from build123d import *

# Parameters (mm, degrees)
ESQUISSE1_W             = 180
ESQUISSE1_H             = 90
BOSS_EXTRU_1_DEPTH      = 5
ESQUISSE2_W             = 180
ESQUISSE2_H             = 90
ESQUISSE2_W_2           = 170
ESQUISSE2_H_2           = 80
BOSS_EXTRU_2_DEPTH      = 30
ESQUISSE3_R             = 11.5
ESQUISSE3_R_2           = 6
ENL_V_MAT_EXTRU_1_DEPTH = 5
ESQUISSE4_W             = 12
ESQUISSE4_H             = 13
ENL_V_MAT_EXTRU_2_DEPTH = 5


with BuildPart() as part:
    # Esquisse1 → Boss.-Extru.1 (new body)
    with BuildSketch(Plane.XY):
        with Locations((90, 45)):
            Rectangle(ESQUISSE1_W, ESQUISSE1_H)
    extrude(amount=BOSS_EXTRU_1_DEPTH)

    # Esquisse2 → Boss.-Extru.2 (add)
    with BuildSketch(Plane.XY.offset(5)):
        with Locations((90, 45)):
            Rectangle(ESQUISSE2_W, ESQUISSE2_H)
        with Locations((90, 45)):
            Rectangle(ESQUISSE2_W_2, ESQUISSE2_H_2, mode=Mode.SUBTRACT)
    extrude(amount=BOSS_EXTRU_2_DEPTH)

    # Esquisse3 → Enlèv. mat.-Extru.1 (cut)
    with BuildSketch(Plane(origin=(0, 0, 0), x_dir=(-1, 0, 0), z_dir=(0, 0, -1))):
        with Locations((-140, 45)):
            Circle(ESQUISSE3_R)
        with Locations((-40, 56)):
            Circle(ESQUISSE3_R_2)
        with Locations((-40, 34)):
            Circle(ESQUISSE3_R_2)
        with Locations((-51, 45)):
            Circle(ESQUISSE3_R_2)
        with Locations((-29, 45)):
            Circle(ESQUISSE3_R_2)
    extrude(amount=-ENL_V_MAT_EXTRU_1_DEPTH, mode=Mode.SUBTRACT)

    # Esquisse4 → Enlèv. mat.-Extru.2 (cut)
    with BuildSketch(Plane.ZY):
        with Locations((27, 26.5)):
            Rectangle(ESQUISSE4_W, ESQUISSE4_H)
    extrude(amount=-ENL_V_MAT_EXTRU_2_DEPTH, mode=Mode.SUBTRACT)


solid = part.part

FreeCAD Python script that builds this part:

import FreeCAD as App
import Part
import Sketcher

V = App.Vector

doc = App.newDocument("Part")
body = doc.addObject("PartDesign::Body", "Body")

# Sketch on XY plane
sketch1 = body.newObject("Sketcher::SketchObject", "Sketch")
sketch1.AttachmentSupport = (doc.getObject("XY_Plane"), [""])
sketch1.MapMode = "FlatFace"
sketch1.addGeometry([
    Part.LineSegment(V(0, 90, 0), V(0, 0, 0)),
    Part.LineSegment(V(0, 0, 0), V(180, 0, 0)),
    Part.LineSegment(V(180, 0, 0), V(180, 90, 0)),
    Part.LineSegment(V(180, 90, 0), V(0, 90, 0)),
], False)
sketch1.addConstraint([
    Sketcher.Constraint("Coincident", 0, 2, 1, 1),
    Sketcher.Constraint("Coincident", 1, 2, 2, 1),
    Sketcher.Constraint("Coincident", 2, 2, 3, 1),
    Sketcher.Constraint("Coincident", 3, 2, 0, 1),
    Sketcher.Constraint("Vertical", 0),
    Sketcher.Constraint("Horizontal", 1),
    Sketcher.Constraint("Vertical", 2),
    Sketcher.Constraint("Horizontal", 3),
    Sketcher.Constraint("Coincident", 0, 2, -1, 1),
    Sketcher.Constraint("DistanceX", 1, 1, 1, 2, 180.0),
    Sketcher.Constraint("DistanceY", 0, 2, 0, 1, 90.0),
])
pad1 = body.newObject("PartDesign::Pad", "Pad")
pad1.Profile = sketch1
pad1.Length = 5

# Sketch on XY plane
sketch2 = body.newObject("Sketcher::SketchObject", "Sketch001")
sketch2.AttachmentSupport = (doc.getObject("XY_Plane"), [""])
sketch2.MapMode = "FlatFace"
sketch2.AttachmentOffset = App.Placement(V(0, 0, 5), App.Rotation())
sketch2.addGeometry([
    Part.LineSegment(V(0, 90, 0), V(0, 0, 0)),  # 0
    Part.LineSegment(V(0, 0, 0), V(180, 0, 0)),  # 1
    Part.LineSegment(V(180, 0, 0), V(180, 90, 0)),  # 2
    Part.LineSegment(V(180, 90, 0), V(0, 90, 0)),  # 3
    Part.LineSegment(V(175, 5, 0), V(5, 5, 0)),  # 4
    Part.LineSegment(V(5, 5, 0), V(5, 85, 0)),  # 5
    Part.LineSegment(V(5, 85, 0), V(175, 85, 0)),  # 6
    Part.LineSegment(V(175, 85, 0), V(175, 5, 0)),  # 7
], False)
sketch2.addConstraint([
    Sketcher.Constraint("Coincident", 0, 2, 1, 1),
    Sketcher.Constraint("Coincident", 1, 2, 2, 1),
    Sketcher.Constraint("Coincident", 2, 2, 3, 1),
    Sketcher.Constraint("Coincident", 3, 2, 0, 1),
    Sketcher.Constraint("Coincident", 4, 2, 5, 1),
    Sketcher.Constraint("Coincident", 5, 2, 6, 1),
    Sketcher.Constraint("Coincident", 6, 2, 7, 1),
    Sketcher.Constraint("Coincident", 7, 2, 4, 1),
    Sketcher.Constraint("Vertical", 0),
    Sketcher.Constraint("Horizontal", 1),
    Sketcher.Constraint("Vertical", 2),
    Sketcher.Constraint("Horizontal", 3),
    Sketcher.Constraint("Horizontal", 4),
    Sketcher.Constraint("Vertical", 5),
    Sketcher.Constraint("Horizontal", 6),
    Sketcher.Constraint("Vertical", 7),
    Sketcher.Constraint("Coincident", 0, 2, -1, 1),
    Sketcher.Constraint("DistanceX", 1, 1, 1, 2, 180.0),
    Sketcher.Constraint("DistanceX", 4, 2, 4, 1, 170.0),
    Sketcher.Constraint("DistanceY", 0, 2, 0, 1, 90.0),
    Sketcher.Constraint("DistanceY", 5, 1, 5, 2, 80.0),
    Sketcher.Constraint("DistanceX", -1, 1, 4, 2, 5.0),
    Sketcher.Constraint("DistanceY", -1, 1, 4, 2, 5.0),
])
pad2 = body.newObject("PartDesign::Pad", "Pad001")
pad2.Profile = sketch2
pad2.Length = 30

# Sketch on XY plane
sketch3 = body.newObject("Sketcher::SketchObject", "Sketch002")
sketch3.AttachmentSupport = (doc.getObject("XY_Plane"), [""])
sketch3.MapMode = "FlatFace"
sketch3.addGeometry([
    Part.Circle(V(140, 45, 0), V(0, 0, 1), 12),  # 0
    Part.Circle(V(40, 56, 0), V(0, 0, 1), 6),  # 1
    Part.Circle(V(40, 34, 0), V(0, 0, 1), 6),  # 2
    Part.Circle(V(51, 45, 0), V(0, 0, 1), 6),  # 3
    Part.Circle(V(29, 45, 0), V(0, 0, 1), 6),  # 4
], False)
sketch3.addConstraint([
    Sketcher.Constraint("Equal", 1, 2),
    Sketcher.Constraint("Equal", 2, 3),
    Sketcher.Constraint("Equal", 3, 4),
    Sketcher.Constraint("Horizontal", 0, 3, 3, 3),
    Sketcher.Constraint("Horizontal", 3, 3, 4, 3),
    Sketcher.Constraint("Vertical", 1, 3, 2, 3),
    Sketcher.Constraint("Diameter", 0, 23.0),
    Sketcher.Constraint("Diameter", 1, 12.0),
    Sketcher.Constraint("DistanceX", -1, 1, 0, 3, 140.0),
    Sketcher.Constraint("DistanceY", -1, 1, 0, 3, 45.0),
    Sketcher.Constraint("DistanceX", -1, 1, 1, 3, 40.0),
    Sketcher.Constraint("DistanceY", -1, 1, 1, 3, 56.0),
    Sketcher.Constraint("DistanceY", -1, 1, 2, 3, 34.0),
    Sketcher.Constraint("DistanceX", -1, 1, 3, 3, 51.0),
    Sketcher.Constraint("DistanceX", -1, 1, 4, 3, 29.0),
])
pocket1 = body.newObject("PartDesign::Pocket", "Pocket")
pocket1.Profile = sketch3
pocket1.Length = 5
pocket1.Reversed = True

# Sketch on YZ plane
sketch4 = body.newObject("Sketcher::SketchObject", "Sketch003")
sketch4.AttachmentSupport = (doc.getObject("YZ_Plane"), [""])
sketch4.MapMode = "FlatFace"
sketch4.addGeometry([
    Part.LineSegment(V(33, 21, 0), V(20, 21, 0)),
    Part.LineSegment(V(20, 21, 0), V(20, 33, 0)),
    Part.LineSegment(V(20, 33, 0), V(33, 33, 0)),
    Part.LineSegment(V(33, 33, 0), V(33, 21, 0)),
], False)
sketch4.addConstraint([
    Sketcher.Constraint("Coincident", 0, 2, 1, 1),
    Sketcher.Constraint("Coincident", 1, 2, 2, 1),
    Sketcher.Constraint("Coincident", 2, 2, 3, 1),
    Sketcher.Constraint("Coincident", 3, 2, 0, 1),
    Sketcher.Constraint("Horizontal", 0),
    Sketcher.Constraint("Vertical", 1),
    Sketcher.Constraint("Horizontal", 2),
    Sketcher.Constraint("Vertical", 3),
    Sketcher.Constraint("DistanceX", 0, 2, 0, 1, 13.0),
    Sketcher.Constraint("DistanceY", 1, 1, 1, 2, 12.0),
    Sketcher.Constraint("DistanceX", -1, 1, 0, 2, 20.0),
    Sketcher.Constraint("DistanceY", -1, 1, 0, 2, 21.0),
])
pocket2 = body.newObject("PartDesign::Pocket", "Pocket001")
pocket2.Profile = sketch4
pocket2.Length = 5
pocket2.Reversed = True

doc.recompute()
